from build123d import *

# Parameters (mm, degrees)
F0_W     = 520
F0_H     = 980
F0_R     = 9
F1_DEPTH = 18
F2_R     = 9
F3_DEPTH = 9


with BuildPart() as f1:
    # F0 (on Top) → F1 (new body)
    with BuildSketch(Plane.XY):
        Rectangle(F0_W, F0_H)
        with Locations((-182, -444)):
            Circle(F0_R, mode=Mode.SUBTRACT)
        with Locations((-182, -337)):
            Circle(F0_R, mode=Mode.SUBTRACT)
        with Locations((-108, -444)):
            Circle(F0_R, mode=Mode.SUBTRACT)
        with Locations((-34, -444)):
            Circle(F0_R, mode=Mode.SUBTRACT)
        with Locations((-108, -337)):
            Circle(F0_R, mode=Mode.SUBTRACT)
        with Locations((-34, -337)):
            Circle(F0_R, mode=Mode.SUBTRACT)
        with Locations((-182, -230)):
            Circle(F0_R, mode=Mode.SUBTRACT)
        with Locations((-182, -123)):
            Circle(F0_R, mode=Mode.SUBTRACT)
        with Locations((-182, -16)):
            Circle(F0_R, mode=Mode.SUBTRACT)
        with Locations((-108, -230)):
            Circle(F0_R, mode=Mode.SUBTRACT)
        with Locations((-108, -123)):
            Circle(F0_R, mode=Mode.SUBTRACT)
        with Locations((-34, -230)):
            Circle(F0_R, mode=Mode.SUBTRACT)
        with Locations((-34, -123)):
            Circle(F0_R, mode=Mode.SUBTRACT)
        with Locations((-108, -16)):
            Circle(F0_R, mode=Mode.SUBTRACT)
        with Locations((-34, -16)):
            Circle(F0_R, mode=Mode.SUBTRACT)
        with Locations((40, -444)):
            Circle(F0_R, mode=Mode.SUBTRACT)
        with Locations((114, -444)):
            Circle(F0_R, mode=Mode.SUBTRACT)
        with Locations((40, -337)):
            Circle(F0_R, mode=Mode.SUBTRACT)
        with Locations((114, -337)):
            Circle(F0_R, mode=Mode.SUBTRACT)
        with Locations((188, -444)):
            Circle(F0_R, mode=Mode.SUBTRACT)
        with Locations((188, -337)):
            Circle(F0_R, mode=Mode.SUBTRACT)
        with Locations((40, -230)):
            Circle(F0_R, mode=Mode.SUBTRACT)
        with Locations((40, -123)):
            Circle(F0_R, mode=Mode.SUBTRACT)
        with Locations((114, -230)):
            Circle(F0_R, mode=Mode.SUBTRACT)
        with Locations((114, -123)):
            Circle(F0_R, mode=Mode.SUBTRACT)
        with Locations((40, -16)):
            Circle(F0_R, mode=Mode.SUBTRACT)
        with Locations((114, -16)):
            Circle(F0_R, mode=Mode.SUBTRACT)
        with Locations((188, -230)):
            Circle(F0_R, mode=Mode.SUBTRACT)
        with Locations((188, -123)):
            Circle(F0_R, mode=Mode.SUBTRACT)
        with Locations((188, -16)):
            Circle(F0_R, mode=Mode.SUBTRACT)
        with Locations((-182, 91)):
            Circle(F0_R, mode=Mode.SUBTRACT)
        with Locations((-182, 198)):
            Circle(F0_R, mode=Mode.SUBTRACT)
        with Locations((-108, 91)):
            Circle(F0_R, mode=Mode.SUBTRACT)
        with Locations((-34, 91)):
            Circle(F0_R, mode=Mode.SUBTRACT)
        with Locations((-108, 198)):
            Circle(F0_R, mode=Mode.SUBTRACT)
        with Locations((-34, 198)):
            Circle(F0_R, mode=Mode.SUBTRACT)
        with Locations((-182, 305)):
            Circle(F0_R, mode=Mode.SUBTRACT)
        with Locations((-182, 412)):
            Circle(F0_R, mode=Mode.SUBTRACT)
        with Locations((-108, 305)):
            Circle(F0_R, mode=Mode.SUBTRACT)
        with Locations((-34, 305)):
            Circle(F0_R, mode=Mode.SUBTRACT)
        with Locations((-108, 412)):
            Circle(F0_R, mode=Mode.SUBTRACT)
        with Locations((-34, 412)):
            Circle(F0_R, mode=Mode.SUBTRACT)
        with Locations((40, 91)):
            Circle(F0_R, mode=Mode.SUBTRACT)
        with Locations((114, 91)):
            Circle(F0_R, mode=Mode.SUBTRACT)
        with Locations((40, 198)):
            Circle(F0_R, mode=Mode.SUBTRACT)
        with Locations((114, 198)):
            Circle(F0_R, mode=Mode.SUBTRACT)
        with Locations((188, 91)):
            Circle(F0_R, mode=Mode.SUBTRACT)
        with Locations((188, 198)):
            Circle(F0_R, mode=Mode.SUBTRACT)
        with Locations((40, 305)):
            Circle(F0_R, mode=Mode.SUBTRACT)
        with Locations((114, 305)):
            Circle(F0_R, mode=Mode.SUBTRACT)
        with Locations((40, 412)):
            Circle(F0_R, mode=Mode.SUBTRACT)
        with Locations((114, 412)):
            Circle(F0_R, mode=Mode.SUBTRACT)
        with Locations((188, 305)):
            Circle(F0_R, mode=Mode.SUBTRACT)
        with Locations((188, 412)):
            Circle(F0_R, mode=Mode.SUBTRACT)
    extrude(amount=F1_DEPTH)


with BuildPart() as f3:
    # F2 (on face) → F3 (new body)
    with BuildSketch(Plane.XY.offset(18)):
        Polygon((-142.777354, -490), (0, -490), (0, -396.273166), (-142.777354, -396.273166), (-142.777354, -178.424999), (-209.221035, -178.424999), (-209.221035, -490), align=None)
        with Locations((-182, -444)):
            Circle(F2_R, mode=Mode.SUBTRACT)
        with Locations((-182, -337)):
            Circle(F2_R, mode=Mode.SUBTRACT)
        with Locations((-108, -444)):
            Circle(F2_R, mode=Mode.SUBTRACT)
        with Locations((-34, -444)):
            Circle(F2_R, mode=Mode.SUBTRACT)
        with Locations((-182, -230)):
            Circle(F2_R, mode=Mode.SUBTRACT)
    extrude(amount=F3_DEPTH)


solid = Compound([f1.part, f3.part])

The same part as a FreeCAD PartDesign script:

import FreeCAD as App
import Part
import Sketcher
Q = App.Units.Quantity


def add_polygon(sketch, points):
    """Adds a closed chain of lines whose ends are joined by coincident constraints."""
    first, n = sketch.GeometryCount, len(points)
    for a, b in zip(points, points[1:] + points[:1]):
        sketch.addGeometry(Part.LineSegment(App.Vector(*a, 0), App.Vector(*b, 0)), False)
    for i in range(n):
        sketch.addConstraint(Sketcher.Constraint("Coincident", first + i, 2, first + (i + 1) % n, 1))

doc = App.newDocument("Part")
body = doc.addObject("PartDesign::Body", "Body")

# Sketch on XY plane
sketch1 = body.newObject("Sketcher::SketchObject", "Sketch")
sketch1.AttachmentSupport = (doc.getObject("XY_Plane"), [""])
sketch1.MapMode = "FlatFace"
add_polygon(sketch1, [(-260, 490), (-260, -490), (260, -490), (260, 490)])  # lines 0-3
sketch1.addGeometry(Part.Circle(App.Vector(-182, -444, 0), App.Vector(0, 0, 1), 9), False)  # 4
sketch1.addGeometry(Part.Circle(App.Vector(-108, -444, 0), App.Vector(0, 0, 1), 9), False)  # 5
sketch1.addGeometry(Part.Circle(App.Vector(-182, -337, 0), App.Vector(0, 0, 1), 9), False)  # 6
sketch1.addGeometry(Part.Circle(App.Vector(-108, -337, 0), App.Vector(0, 0, 1), 9), False)  # 7
sketch1.addGeometry(Part.Circle(App.Vector(-34, -444, 0), App.Vector(0, 0, 1), 9), False)  # 8
sketch1.addGeometry(Part.Circle(App.Vector(-34, -337, 0), App.Vector(0, 0, 1), 9), False)  # 9
sketch1.addGeometry(Part.Circle(App.Vector(-182, -230, 0), App.Vector(0, 0, 1), 9), False)  # 10
sketch1.addGeometry(Part.Circle(App.Vector(-108, -230, 0), App.Vector(0, 0, 1), 9), False)  # 11
sketch1.addGeometry(Part.Circle(App.Vector(-182, -123, 0), App.Vector(0, 0, 1), 9), False)  # 12
sketch1.addGeometry(Part.Circle(App.Vector(-108, -123, 0), App.Vector(0, 0, 1), 9), False)  # 13
sketch1.addGeometry(Part.Circle(App.Vector(-34, -230, 0), App.Vector(0, 0, 1), 9), False)  # 14
sketch1.addGeometry(Part.Circle(App.Vector(-34, -123, 0), App.Vector(0, 0, 1), 9), False)  # 15
sketch1.addGeometry(Part.Circle(App.Vector(40, -444, 0), App.Vector(0, 0, 1), 9), False)  # 16
sketch1.addGeometry(Part.Circle(App.Vector(40, -337, 0), App.Vector(0, 0, 1), 9), False)  # 17
sketch1.addGeometry(Part.Circle(App.Vector(114, -444, 0), App.Vector(0, 0, 1), 9), False)  # 18
sketch1.addGeometry(Part.Circle(App.Vector(188, -444, 0), App.Vector(0, 0, 1), 9), False)  # 19
sketch1.addGeometry(Part.Circle(App.Vector(114, -337, 0), App.Vector(0, 0, 1), 9), False)  # 20
sketch1.addGeometry(Part.Circle(App.Vector(188, -337, 0), App.Vector(0, 0, 1), 9), False)  # 21
sketch1.addGeometry(Part.Circle(App.Vector(40, -230, 0), App.Vector(0, 0, 1), 9), False)  # 22
sketch1.addGeometry(Part.Circle(App.Vector(40, -123, 0), App.Vector(0, 0, 1), 9), False)  # 23
sketch1.addGeometry(Part.Circle(App.Vector(114, -230, 0), App.Vector(0, 0, 1), 9), False)  # 24
sketch1.addGeometry(Part.Circle(App.Vector(188, -230, 0), App.Vector(0, 0, 1), 9), False)  # 25
sketch1.addGeometry(Part.Circle(App.Vector(114, -123, 0), App.Vector(0, 0, 1), 9), False)  # 26
sketch1.addGeometry(Part.Circle(App.Vector(188, -123, 0), App.Vector(0, 0, 1), 9), False)  # 27
sketch1.addGeometry(Part.Circle(App.Vector(-182, -16, 0), App.Vector(0, 0, 1), 9), False)  # 28
sketch1.addGeometry(Part.Circle(App.Vector(-182, 91, 0), App.Vector(0, 0, 1), 9), False)  # 29
sketch1.addGeometry(Part.Circle(App.Vector(-108, -16, 0), App.Vector(0, 0, 1), 9), False)  # 30
sketch1.addGeometry(Part.Circle(App.Vector(-108, 91, 0), App.Vector(0, 0, 1), 9), False)  # 31
sketch1.addGeometry(Part.Circle(App.Vector(-182, 198, 0), App.Vector(0, 0, 1), 9), False)  # 32
sketch1.addGeometry(Part.Circle(App.Vector(-108, 198, 0), App.Vector(0, 0, 1), 9), False)  # 33
sketch1.addGeometry(Part.Circle(App.Vector(-34, -16, 0), App.Vector(0, 0, 1), 9), False)  # 34
sketch1.addGeometry(Part.Circle(App.Vector(-34, 91, 0), App.Vector(0, 0, 1), 9), False)  # 35
sketch1.addGeometry(Part.Circle(App.Vector(-34, 198, 0), App.Vector(0, 0, 1), 9), False)  # 36
sketch1.addGeometry(Part.Circle(App.Vector(-182, 305, 0), App.Vector(0, 0, 1), 9), False)  # 37
sketch1.addGeometry(Part.Circle(App.Vector(-108, 305, 0), App.Vector(0, 0, 1), 9), False)  # 38
sketch1.addGeometry(Part.Circle(App.Vector(-182, 412, 0), App.Vector(0, 0, 1), 9), False)  # 39
sketch1.addGeometry(Part.Circle(App.Vector(-108, 412, 0), App.Vector(0, 0, 1), 9), False)  # 40
sketch1.addGeometry(Part.Circle(App.Vector(-34, 305, 0), App.Vector(0, 0, 1), 9), False)  # 41
sketch1.addGeometry(Part.Circle(App.Vector(-34, 412, 0), App.Vector(0, 0, 1), 9), False)  # 42
sketch1.addGeometry(Part.Circle(App.Vector(40, -16, 0), App.Vector(0, 0, 1), 9), False)  # 43
sketch1.addGeometry(Part.Circle(App.Vector(40, 91, 0), App.Vector(0, 0, 1), 9), False)  # 44
sketch1.addGeometry(Part.Circle(App.Vector(40, 198, 0), App.Vector(0, 0, 1), 9), False)  # 45
sketch1.addGeometry(Part.Circle(App.Vector(114, -16, 0), App.Vector(0, 0, 1), 9), False)  # 46
sketch1.addGeometry(Part.Circle(App.Vector(114, 91, 0), App.Vector(0, 0, 1), 9), False)  # 47
sketch1.addGeometry(Part.Circle(App.Vector(188, -16, 0), App.Vector(0, 0, 1), 9), False)  # 48
sketch1.addGeometry(Part.Circle(App.Vector(188, 91, 0), App.Vector(0, 0, 1), 9), False)  # 49
sketch1.addGeometry(Part.Circle(App.Vector(114, 198, 0), App.Vector(0, 0, 1), 9), False)  # 50
sketch1.addGeometry(Part.Circle(App.Vector(188, 198, 0), App.Vector(0, 0, 1), 9), False)  # 51
sketch1.addGeometry(Part.Circle(App.Vector(40, 305, 0), App.Vector(0, 0, 1), 9), False)  # 52
sketch1.addGeometry(Part.Circle(App.Vector(40, 412, 0), App.Vector(0, 0, 1), 9), False)  # 53
sketch1.addGeometry(Part.Circle(App.Vector(114, 305, 0), App.Vector(0, 0, 1), 9), False)  # 54
sketch1.addGeometry(Part.Circle(App.Vector(188, 305, 0), App.Vector(0, 0, 1), 9), False)  # 55
sketch1.addGeometry(Part.Circle(App.Vector(114, 412, 0), App.Vector(0, 0, 1), 9), False)  # 56
sketch1.addGeometry(Part.Circle(App.Vector(188, 412, 0), App.Vector(0, 0, 1), 9), False)  # 57
sketch1.addConstraint([
    Sketcher.Constraint("Vertical", 0),
    Sketcher.Constraint("Horizontal", 1),
    Sketcher.Constraint("Vertical", 2),
    Sketcher.Constraint("Horizontal", 3),
    Sketcher.Constraint("Equal", 4, 5),
    Sketcher.Constraint("Equal", 5, 6),
    Sketcher.Constraint("Equal", 6, 7),
    Sketcher.Constraint("Equal", 7, 8),
    Sketcher.Constraint("Equal", 8, 9),
    Sketcher.Constraint("Equal", 9, 10),
    Sketcher.Constraint("Equal", 10, 11),
    Sketcher.Constraint("Equal", 11, 12),
    Sketcher.Constraint("Equal", 12, 13),
    Sketcher.Constraint("Equal", 13, 14),
    Sketcher.Constraint("Equal", 14, 15),
    Sketcher.Constraint("Equal", 15, 16),
    Sketcher.Constraint("Equal", 16, 17),
    Sketcher.Constraint("Equal", 17, 18),
    Sketcher.Constraint("Equal", 18, 19),
    Sketcher.Constraint("Equal", 19, 20),
    Sketcher.Constraint("Equal", 20, 21),
    Sketcher.Constraint("Equal", 21, 22),
    Sketcher.Constraint("Equal", 22, 23),
    Sketcher.Constraint("Equal", 23, 24),
    Sketcher.Constraint("Equal", 24, 25),
    Sketcher.Constraint("Equal", 25, 26),
    Sketcher.Constraint("Equal", 26, 27),
    Sketcher.Constraint("Equal", 27, 28),
    Sketcher.Constraint("Equal", 28, 29),
    Sketcher.Constraint("Equal", 29, 30),
    Sketcher.Constraint("Equal", 30, 31),
    Sketcher.Constraint("Equal", 31, 32),
    Sketcher.Constraint("Equal", 32, 33),
    Sketcher.Constraint("Equal", 33, 34),
    Sketcher.Constraint("Equal", 34, 35),
    Sketcher.Constraint("Equal", 35, 36),
    Sketcher.Constraint("Equal", 36, 37),
    Sketcher.Constraint("Equal", 37, 38),
    Sketcher.Constraint("Equal", 38, 39),
    Sketcher.Constraint("Equal", 39, 40),
    Sketcher.Constraint("Equal", 40, 41),
    Sketcher.Constraint("Equal", 41, 42),
    Sketcher.Constraint("Equal", 42, 43),
    Sketcher.Constraint("Equal", 43, 44),
    Sketcher.Constraint("Equal", 44, 45),
    Sketcher.Constraint("Equal", 45, 46),
    Sketcher.Constraint("Equal", 46, 47),
    Sketcher.Constraint("Equal", 47, 48),
    Sketcher.Constraint("Equal", 48, 49),
    Sketcher.Constraint("Equal", 49, 50),
    Sketcher.Constraint("Equal", 50, 51),
    Sketcher.Constraint("Equal", 51, 52),
    Sketcher.Constraint("Equal", 52, 53),
    Sketcher.Constraint("Equal", 53, 54),
    Sketcher.Constraint("Equal", 54, 55),
    Sketcher.Constraint("Equal", 55, 56),
    Sketcher.Constraint("Equal", 56, 57),
    Sketcher.Constraint("Symmetric", 0, 2, 2, 2, -1, 1),
    Sketcher.Constraint("Horizontal", 4, 3, 5, 3),
    Sketcher.Constraint("Horizontal", 6, 3, 7, 3),
    Sketcher.Constraint("Horizontal", 5, 3, 8, 3),
    Sketcher.Constraint("Horizontal", 7, 3, 9, 3),
    Sketcher.Constraint("Horizontal", 10, 3, 11, 3),
    Sketcher.Constraint("Horizontal", 12, 3, 13, 3),
    Sketcher.Constraint("Horizontal", 11, 3, 14, 3),
    Sketcher.Constraint("Horizontal", 13, 3, 15, 3),
    Sketcher.Constraint("Horizontal", 8, 3, 16, 3),
    Sketcher.Constraint("Horizontal", 9, 3, 17, 3),
    Sketcher.Constraint("Horizontal", 16, 3, 18, 3),
    Sketcher.Constraint("Horizontal", 18, 3, 19, 3),
    Sketcher.Constraint("Horizontal", 17, 3, 20, 3),
    Sketcher.Constraint("Horizontal", 20, 3, 21, 3),
    Sketcher.Constraint("Horizontal", 14, 3, 22, 3),
    Sketcher.Constraint("Horizontal", 15, 3, 23, 3),
    Sketcher.Constraint("Horizontal", 22, 3, 24, 3),
    Sketcher.Constraint("Horizontal", 24, 3, 25, 3),
    Sketcher.Constraint("Horizontal", 23, 3, 26, 3),
    Sketcher.Constraint("Horizontal", 26, 3, 27, 3),
    Sketcher.Constraint("Horizontal", 28, 3, 30, 3),
    Sketcher.Constraint("Horizontal", 29, 3, 31, 3),
    Sketcher.Constraint("Horizontal", 32, 3, 33, 3),
    Sketcher.Constraint("Horizontal", 30, 3, 34, 3),
    Sketcher.Constraint("Horizontal", 31, 3, 35, 3),
    Sketcher.Constraint("Horizontal", 33, 3, 36, 3),
    Sketcher.Constraint("Horizontal", 37, 3, 38, 3),
    Sketcher.Constraint("Horizontal", 39, 3, 40, 3),
    Sketcher.Constraint("Horizontal", 38, 3, 41, 3),
    Sketcher.Constraint("Horizontal", 40, 3, 42, 3),
    Sketcher.Constraint("Horizontal", 34, 3, 43, 3),
    Sketcher.Constraint("Horizontal", 35, 3, 44, 3),
    Sketcher.Constraint("Horizontal", 36, 3, 45, 3),
    Sketcher.Constraint("Horizontal", 43, 3, 46, 3),
    Sketcher.Constraint("Horizontal", 44, 3, 47, 3),
    Sketcher.Constraint("Horizontal", 46, 3, 48, 3),
    Sketcher.Constraint("Horizontal", 47, 3, 49, 3),
    Sketcher.Constraint("Horizontal", 45, 3, 50, 3),
    Sketcher.Constraint("Horizontal", 50, 3, 51, 3),
    Sketcher.Constraint("Horizontal", 41, 3, 52, 3),
    Sketcher.Constraint("Horizontal", 42, 3, 53, 3),
    Sketcher.Constraint("Horizontal", 52, 3, 54, 3),
    Sketcher.Constraint("Horizontal", 54, 3, 55, 3),
    Sketcher.Constraint("Horizontal", 53, 3, 56, 3),
    Sketcher.Constraint("Horizontal", 56, 3, 57, 3),
    Sketcher.Constraint("Vertical", 4, 3, 6, 3),
    Sketcher.Constraint("Vertical", 5, 3, 7, 3),
    Sketcher.Constraint("Vertical", 8, 3, 9, 3),
    Sketcher.Constraint("Vertical", 6, 3, 10, 3),
    Sketcher.Constraint("Vertical", 7, 3, 11, 3),
    Sketcher.Constraint("Vertical", 10, 3, 12, 3),
    Sketcher.Constraint("Vertical", 11, 3, 13, 3),
    Sketcher.Constraint("Vertical", 9, 3, 14, 3),
    Sketcher.Constraint("Vertical", 14, 3, 15, 3),
    Sketcher.Constraint("Vertical", 16, 3, 17, 3),
    Sketcher.Constraint("Vertical", 18, 3, 20, 3),
    Sketcher.Constraint("Vertical", 19, 3, 21, 3),
    Sketcher.Constraint("Vertical", 17, 3, 22, 3),
    Sketcher.Constraint("Vertical", 22, 3, 23, 3),
    Sketcher.Constraint("Vertical", 20, 3, 24, 3),
    Sketcher.Constraint("Vertical", 21, 3, 25, 3),
    Sketcher.Constraint("Vertical", 24, 3, 26, 3),
    Sketcher.Constraint("Vertical", 25, 3, 27, 3),
    Sketcher.Constraint("Vertical", 12, 3, 28, 3),
    Sketcher.Constraint("Vertical", 28, 3, 29, 3),
    Sketcher.Constraint("Vertical", 13, 3, 30, 3),
    Sketcher.Constraint("Vertical", 30, 3, 31, 3),
    Sketcher.Constraint("Vertical", 29, 3, 32, 3),
    Sketcher.Constraint("Vertical", 31, 3, 33, 3),
    Sketcher.Constraint("Vertical", 15, 3, 34, 3),
    Sketcher.Constraint("Vertical", 34, 3, 35, 3),
    Sketcher.Constraint("Vertical", 35, 3, 36, 3),
    Sketcher.Constraint("Vertical", 32, 3, 37, 3),
    Sketcher.Constraint("Vertical", 33, 3, 38, 3),
    Sketcher.Constraint("Vertical", 37, 3, 39, 3),
    Sketcher.Constraint("Vertical", 38, 3, 40, 3),
    Sketcher.Constraint("Vertical", 36, 3, 41, 3),
    Sketcher.Constraint("Vertical", 41, 3, 42, 3),
    Sketcher.Constraint("Vertical", 23, 3, 43, 3),
    Sketcher.Constraint("Vertical", 43, 3, 44, 3),
    Sketcher.Constraint("Vertical", 44, 3, 45, 3),
    Sketcher.Constraint("Vertical", 26, 3, 46, 3),
    Sketcher.Constraint("Vertical", 46, 3, 47, 3),
    Sketcher.Constraint("Vertical", 27, 3, 48, 3),
    Sketcher.Constraint("Vertical", 48, 3, 49, 3),
    Sketcher.Constraint("Vertical", 47, 3, 50, 3),
    Sketcher.Constraint("Vertical", 49, 3, 51, 3),
    Sketcher.Constraint("Vertical", 45, 3, 52, 3),
    Sketcher.Constraint("Vertical", 52, 3, 53, 3),
    Sketcher.Constraint("Vertical", 50, 3, 54, 3),
    Sketcher.Constraint("Vertical", 51, 3, 55, 3),
    Sketcher.Constraint("Vertical", 54, 3, 56, 3),
    Sketcher.Constraint("Vertical", 55, 3, 57, 3),
    Sketcher.Constraint("Diameter", 4, Q("18 mm")),
    Sketcher.Constraint("DistanceX", 1, 1, 1, 2, Q("520 mm")),
    Sketcher.Constraint("DistanceY", 0, 2, 0, 1, Q("980 mm")),
    Sketcher.Constraint("DistanceX", 4, 3, -1, 1, Q("182 mm")),
    Sketcher.Constraint("DistanceY", 4, 3, -1, 1, Q("444 mm")),
    Sketcher.Constraint("DistanceX", 5, 3, -1, 1, Q("108 mm")),
    Sketcher.Constraint("DistanceY", 6, 3, -1, 1, Q("337 mm")),
    Sketcher.Constraint("DistanceX", 8, 3, -1, 1, Q("34 mm")),
    Sketcher.Constraint("DistanceY", 10, 3, -1, 1, Q("230 mm")),
    Sketcher.Constraint("DistanceY", 12, 3, -1, 1, Q("123 mm")),
    Sketcher.Constraint("DistanceX", -1, 1, 16, 3, Q("40 mm")),
    Sketcher.Constraint("DistanceX", -1, 1, 18, 3, Q("114 mm")),
    Sketcher.Constraint("DistanceX", -1, 1, 19, 3, Q("188 mm")),
    Sketcher.Constraint("DistanceY", 28, 3, -1, 1, Q("16 mm")),
    Sketcher.Constraint("DistanceY", -1, 1, 29, 3, Q("91 mm")),
    Sketcher.Constraint("DistanceY", -1, 1, 32, 3, Q("198 mm")),
    Sketcher.Constraint("DistanceY", -1, 1, 37, 3, Q("305 mm")),
    Sketcher.Constraint("DistanceY", -1, 1, 39, 3, Q("412 mm")),
])
pad1 = body.newObject("PartDesign::Pad", "Pad")
pad1.Profile = sketch1
pad1.Length = 18
body2 = doc.addObject("PartDesign::Body", "Body001")

# Sketch on XY plane
sketch2 = body2.newObject("Sketcher::SketchObject", "Sketch001")
sketch2.AttachmentSupport = (doc.getObject("XY_Plane001"), [""])
sketch2.MapMode = "FlatFace"
sketch2.AttachmentOffset = App.Placement(App.Vector(0, 0, 18), App.Rotation())
add_polygon(sketch2, [(0, -490), (0, -396), (-143, -396), (-143, -178), (-209, -178), (-209, -490)])  # lines 0-5
sketch2.addGeometry(Part.Circle(App.Vector(-182, -444, 0), App.Vector(0, 0, 1), 9), False)  # 6
sketch2.addGeometry(Part.Circle(App.Vector(-108, -444, 0), App.Vector(0, 0, 1), 9), False)  # 7
sketch2.addGeometry(Part.Circle(App.Vector(-34, -444, 0), App.Vector(0, 0, 1), 9), False)  # 8
sketch2.addGeometry(Part.Circle(App.Vector(-182, -337, 0), App.Vector(0, 0, 1), 9), False)  # 9
sketch2.addGeometry(Part.Circle(App.Vector(-182, -230, 0), App.Vector(0, 0, 1), 9), False)  # 10
sketch2.addConstraint([
    Sketcher.Constraint("Vertical", 0),
    Sketcher.Constraint("Horizontal", 1),
    Sketcher.Constraint("Vertical", 2),
    Sketcher.Constraint("Horizontal", 3),
    Sketcher.Constraint("Vertical", 4),
    Sketcher.Constraint("Horizontal", 5),
    Sketcher.Constraint("Equal", 6, 7),
    Sketcher.Constraint("Equal", 7, 8),
    Sketcher.Constraint("Equal", 8, 9),
    Sketcher.Constraint("Equal", 9, 10),
    Sketcher.Constraint("PointOnObject", 0, 2, -2),
    Sketcher.Constraint("Horizontal", 6, 3, 7, 3),
    Sketcher.Constraint("Horizontal", 7, 3, 8, 3),
    Sketcher.Constraint("Vertical", 6, 3, 9, 3),
    Sketcher.Constraint("Vertical", 9, 3, 10, 3),
    Sketcher.Constraint("Diameter", 6, Q("18 mm")),
    Sketcher.Constraint("DistanceX", 6, 3, -1, 1, Q("182 mm")),
    Sketcher.Constraint("DistanceY", 6, 3, -1, 1, Q("444 mm")),
    Sketcher.Constraint("DistanceX", 7, 3, -1, 1, Q("108 mm")),
    Sketcher.Constraint("DistanceX", 8, 3, -1, 1, Q("34 mm")),
    Sketcher.Constraint("DistanceY", 9, 3, -1, 1, Q("337 mm")),
    Sketcher.Constraint("DistanceY", 10, 3, -1, 1, Q("230 mm")),
    Sketcher.Constraint("DistanceY", 4, 2, -1, 1, Q("490 mm")),
    Sketcher.Constraint("DistanceY", 4, 2, 4, 1, Q("311.575001 mm")),
    Sketcher.Constraint("DistanceX", 3, 2, 3, 1, Q("66.443681 mm")),
    Sketcher.Constraint("DistanceX", 1, 2, 1, 1, Q("142.777354 mm")),
    Sketcher.Constraint("DistanceY", 0, 1, 0, 2, Q("93.726834 mm")),
])
pad2 = body2.newObject("PartDesign::Pad", "Pad001")
pad2.Profile = sketch2
pad2.Length = 9

doc.recompute()
